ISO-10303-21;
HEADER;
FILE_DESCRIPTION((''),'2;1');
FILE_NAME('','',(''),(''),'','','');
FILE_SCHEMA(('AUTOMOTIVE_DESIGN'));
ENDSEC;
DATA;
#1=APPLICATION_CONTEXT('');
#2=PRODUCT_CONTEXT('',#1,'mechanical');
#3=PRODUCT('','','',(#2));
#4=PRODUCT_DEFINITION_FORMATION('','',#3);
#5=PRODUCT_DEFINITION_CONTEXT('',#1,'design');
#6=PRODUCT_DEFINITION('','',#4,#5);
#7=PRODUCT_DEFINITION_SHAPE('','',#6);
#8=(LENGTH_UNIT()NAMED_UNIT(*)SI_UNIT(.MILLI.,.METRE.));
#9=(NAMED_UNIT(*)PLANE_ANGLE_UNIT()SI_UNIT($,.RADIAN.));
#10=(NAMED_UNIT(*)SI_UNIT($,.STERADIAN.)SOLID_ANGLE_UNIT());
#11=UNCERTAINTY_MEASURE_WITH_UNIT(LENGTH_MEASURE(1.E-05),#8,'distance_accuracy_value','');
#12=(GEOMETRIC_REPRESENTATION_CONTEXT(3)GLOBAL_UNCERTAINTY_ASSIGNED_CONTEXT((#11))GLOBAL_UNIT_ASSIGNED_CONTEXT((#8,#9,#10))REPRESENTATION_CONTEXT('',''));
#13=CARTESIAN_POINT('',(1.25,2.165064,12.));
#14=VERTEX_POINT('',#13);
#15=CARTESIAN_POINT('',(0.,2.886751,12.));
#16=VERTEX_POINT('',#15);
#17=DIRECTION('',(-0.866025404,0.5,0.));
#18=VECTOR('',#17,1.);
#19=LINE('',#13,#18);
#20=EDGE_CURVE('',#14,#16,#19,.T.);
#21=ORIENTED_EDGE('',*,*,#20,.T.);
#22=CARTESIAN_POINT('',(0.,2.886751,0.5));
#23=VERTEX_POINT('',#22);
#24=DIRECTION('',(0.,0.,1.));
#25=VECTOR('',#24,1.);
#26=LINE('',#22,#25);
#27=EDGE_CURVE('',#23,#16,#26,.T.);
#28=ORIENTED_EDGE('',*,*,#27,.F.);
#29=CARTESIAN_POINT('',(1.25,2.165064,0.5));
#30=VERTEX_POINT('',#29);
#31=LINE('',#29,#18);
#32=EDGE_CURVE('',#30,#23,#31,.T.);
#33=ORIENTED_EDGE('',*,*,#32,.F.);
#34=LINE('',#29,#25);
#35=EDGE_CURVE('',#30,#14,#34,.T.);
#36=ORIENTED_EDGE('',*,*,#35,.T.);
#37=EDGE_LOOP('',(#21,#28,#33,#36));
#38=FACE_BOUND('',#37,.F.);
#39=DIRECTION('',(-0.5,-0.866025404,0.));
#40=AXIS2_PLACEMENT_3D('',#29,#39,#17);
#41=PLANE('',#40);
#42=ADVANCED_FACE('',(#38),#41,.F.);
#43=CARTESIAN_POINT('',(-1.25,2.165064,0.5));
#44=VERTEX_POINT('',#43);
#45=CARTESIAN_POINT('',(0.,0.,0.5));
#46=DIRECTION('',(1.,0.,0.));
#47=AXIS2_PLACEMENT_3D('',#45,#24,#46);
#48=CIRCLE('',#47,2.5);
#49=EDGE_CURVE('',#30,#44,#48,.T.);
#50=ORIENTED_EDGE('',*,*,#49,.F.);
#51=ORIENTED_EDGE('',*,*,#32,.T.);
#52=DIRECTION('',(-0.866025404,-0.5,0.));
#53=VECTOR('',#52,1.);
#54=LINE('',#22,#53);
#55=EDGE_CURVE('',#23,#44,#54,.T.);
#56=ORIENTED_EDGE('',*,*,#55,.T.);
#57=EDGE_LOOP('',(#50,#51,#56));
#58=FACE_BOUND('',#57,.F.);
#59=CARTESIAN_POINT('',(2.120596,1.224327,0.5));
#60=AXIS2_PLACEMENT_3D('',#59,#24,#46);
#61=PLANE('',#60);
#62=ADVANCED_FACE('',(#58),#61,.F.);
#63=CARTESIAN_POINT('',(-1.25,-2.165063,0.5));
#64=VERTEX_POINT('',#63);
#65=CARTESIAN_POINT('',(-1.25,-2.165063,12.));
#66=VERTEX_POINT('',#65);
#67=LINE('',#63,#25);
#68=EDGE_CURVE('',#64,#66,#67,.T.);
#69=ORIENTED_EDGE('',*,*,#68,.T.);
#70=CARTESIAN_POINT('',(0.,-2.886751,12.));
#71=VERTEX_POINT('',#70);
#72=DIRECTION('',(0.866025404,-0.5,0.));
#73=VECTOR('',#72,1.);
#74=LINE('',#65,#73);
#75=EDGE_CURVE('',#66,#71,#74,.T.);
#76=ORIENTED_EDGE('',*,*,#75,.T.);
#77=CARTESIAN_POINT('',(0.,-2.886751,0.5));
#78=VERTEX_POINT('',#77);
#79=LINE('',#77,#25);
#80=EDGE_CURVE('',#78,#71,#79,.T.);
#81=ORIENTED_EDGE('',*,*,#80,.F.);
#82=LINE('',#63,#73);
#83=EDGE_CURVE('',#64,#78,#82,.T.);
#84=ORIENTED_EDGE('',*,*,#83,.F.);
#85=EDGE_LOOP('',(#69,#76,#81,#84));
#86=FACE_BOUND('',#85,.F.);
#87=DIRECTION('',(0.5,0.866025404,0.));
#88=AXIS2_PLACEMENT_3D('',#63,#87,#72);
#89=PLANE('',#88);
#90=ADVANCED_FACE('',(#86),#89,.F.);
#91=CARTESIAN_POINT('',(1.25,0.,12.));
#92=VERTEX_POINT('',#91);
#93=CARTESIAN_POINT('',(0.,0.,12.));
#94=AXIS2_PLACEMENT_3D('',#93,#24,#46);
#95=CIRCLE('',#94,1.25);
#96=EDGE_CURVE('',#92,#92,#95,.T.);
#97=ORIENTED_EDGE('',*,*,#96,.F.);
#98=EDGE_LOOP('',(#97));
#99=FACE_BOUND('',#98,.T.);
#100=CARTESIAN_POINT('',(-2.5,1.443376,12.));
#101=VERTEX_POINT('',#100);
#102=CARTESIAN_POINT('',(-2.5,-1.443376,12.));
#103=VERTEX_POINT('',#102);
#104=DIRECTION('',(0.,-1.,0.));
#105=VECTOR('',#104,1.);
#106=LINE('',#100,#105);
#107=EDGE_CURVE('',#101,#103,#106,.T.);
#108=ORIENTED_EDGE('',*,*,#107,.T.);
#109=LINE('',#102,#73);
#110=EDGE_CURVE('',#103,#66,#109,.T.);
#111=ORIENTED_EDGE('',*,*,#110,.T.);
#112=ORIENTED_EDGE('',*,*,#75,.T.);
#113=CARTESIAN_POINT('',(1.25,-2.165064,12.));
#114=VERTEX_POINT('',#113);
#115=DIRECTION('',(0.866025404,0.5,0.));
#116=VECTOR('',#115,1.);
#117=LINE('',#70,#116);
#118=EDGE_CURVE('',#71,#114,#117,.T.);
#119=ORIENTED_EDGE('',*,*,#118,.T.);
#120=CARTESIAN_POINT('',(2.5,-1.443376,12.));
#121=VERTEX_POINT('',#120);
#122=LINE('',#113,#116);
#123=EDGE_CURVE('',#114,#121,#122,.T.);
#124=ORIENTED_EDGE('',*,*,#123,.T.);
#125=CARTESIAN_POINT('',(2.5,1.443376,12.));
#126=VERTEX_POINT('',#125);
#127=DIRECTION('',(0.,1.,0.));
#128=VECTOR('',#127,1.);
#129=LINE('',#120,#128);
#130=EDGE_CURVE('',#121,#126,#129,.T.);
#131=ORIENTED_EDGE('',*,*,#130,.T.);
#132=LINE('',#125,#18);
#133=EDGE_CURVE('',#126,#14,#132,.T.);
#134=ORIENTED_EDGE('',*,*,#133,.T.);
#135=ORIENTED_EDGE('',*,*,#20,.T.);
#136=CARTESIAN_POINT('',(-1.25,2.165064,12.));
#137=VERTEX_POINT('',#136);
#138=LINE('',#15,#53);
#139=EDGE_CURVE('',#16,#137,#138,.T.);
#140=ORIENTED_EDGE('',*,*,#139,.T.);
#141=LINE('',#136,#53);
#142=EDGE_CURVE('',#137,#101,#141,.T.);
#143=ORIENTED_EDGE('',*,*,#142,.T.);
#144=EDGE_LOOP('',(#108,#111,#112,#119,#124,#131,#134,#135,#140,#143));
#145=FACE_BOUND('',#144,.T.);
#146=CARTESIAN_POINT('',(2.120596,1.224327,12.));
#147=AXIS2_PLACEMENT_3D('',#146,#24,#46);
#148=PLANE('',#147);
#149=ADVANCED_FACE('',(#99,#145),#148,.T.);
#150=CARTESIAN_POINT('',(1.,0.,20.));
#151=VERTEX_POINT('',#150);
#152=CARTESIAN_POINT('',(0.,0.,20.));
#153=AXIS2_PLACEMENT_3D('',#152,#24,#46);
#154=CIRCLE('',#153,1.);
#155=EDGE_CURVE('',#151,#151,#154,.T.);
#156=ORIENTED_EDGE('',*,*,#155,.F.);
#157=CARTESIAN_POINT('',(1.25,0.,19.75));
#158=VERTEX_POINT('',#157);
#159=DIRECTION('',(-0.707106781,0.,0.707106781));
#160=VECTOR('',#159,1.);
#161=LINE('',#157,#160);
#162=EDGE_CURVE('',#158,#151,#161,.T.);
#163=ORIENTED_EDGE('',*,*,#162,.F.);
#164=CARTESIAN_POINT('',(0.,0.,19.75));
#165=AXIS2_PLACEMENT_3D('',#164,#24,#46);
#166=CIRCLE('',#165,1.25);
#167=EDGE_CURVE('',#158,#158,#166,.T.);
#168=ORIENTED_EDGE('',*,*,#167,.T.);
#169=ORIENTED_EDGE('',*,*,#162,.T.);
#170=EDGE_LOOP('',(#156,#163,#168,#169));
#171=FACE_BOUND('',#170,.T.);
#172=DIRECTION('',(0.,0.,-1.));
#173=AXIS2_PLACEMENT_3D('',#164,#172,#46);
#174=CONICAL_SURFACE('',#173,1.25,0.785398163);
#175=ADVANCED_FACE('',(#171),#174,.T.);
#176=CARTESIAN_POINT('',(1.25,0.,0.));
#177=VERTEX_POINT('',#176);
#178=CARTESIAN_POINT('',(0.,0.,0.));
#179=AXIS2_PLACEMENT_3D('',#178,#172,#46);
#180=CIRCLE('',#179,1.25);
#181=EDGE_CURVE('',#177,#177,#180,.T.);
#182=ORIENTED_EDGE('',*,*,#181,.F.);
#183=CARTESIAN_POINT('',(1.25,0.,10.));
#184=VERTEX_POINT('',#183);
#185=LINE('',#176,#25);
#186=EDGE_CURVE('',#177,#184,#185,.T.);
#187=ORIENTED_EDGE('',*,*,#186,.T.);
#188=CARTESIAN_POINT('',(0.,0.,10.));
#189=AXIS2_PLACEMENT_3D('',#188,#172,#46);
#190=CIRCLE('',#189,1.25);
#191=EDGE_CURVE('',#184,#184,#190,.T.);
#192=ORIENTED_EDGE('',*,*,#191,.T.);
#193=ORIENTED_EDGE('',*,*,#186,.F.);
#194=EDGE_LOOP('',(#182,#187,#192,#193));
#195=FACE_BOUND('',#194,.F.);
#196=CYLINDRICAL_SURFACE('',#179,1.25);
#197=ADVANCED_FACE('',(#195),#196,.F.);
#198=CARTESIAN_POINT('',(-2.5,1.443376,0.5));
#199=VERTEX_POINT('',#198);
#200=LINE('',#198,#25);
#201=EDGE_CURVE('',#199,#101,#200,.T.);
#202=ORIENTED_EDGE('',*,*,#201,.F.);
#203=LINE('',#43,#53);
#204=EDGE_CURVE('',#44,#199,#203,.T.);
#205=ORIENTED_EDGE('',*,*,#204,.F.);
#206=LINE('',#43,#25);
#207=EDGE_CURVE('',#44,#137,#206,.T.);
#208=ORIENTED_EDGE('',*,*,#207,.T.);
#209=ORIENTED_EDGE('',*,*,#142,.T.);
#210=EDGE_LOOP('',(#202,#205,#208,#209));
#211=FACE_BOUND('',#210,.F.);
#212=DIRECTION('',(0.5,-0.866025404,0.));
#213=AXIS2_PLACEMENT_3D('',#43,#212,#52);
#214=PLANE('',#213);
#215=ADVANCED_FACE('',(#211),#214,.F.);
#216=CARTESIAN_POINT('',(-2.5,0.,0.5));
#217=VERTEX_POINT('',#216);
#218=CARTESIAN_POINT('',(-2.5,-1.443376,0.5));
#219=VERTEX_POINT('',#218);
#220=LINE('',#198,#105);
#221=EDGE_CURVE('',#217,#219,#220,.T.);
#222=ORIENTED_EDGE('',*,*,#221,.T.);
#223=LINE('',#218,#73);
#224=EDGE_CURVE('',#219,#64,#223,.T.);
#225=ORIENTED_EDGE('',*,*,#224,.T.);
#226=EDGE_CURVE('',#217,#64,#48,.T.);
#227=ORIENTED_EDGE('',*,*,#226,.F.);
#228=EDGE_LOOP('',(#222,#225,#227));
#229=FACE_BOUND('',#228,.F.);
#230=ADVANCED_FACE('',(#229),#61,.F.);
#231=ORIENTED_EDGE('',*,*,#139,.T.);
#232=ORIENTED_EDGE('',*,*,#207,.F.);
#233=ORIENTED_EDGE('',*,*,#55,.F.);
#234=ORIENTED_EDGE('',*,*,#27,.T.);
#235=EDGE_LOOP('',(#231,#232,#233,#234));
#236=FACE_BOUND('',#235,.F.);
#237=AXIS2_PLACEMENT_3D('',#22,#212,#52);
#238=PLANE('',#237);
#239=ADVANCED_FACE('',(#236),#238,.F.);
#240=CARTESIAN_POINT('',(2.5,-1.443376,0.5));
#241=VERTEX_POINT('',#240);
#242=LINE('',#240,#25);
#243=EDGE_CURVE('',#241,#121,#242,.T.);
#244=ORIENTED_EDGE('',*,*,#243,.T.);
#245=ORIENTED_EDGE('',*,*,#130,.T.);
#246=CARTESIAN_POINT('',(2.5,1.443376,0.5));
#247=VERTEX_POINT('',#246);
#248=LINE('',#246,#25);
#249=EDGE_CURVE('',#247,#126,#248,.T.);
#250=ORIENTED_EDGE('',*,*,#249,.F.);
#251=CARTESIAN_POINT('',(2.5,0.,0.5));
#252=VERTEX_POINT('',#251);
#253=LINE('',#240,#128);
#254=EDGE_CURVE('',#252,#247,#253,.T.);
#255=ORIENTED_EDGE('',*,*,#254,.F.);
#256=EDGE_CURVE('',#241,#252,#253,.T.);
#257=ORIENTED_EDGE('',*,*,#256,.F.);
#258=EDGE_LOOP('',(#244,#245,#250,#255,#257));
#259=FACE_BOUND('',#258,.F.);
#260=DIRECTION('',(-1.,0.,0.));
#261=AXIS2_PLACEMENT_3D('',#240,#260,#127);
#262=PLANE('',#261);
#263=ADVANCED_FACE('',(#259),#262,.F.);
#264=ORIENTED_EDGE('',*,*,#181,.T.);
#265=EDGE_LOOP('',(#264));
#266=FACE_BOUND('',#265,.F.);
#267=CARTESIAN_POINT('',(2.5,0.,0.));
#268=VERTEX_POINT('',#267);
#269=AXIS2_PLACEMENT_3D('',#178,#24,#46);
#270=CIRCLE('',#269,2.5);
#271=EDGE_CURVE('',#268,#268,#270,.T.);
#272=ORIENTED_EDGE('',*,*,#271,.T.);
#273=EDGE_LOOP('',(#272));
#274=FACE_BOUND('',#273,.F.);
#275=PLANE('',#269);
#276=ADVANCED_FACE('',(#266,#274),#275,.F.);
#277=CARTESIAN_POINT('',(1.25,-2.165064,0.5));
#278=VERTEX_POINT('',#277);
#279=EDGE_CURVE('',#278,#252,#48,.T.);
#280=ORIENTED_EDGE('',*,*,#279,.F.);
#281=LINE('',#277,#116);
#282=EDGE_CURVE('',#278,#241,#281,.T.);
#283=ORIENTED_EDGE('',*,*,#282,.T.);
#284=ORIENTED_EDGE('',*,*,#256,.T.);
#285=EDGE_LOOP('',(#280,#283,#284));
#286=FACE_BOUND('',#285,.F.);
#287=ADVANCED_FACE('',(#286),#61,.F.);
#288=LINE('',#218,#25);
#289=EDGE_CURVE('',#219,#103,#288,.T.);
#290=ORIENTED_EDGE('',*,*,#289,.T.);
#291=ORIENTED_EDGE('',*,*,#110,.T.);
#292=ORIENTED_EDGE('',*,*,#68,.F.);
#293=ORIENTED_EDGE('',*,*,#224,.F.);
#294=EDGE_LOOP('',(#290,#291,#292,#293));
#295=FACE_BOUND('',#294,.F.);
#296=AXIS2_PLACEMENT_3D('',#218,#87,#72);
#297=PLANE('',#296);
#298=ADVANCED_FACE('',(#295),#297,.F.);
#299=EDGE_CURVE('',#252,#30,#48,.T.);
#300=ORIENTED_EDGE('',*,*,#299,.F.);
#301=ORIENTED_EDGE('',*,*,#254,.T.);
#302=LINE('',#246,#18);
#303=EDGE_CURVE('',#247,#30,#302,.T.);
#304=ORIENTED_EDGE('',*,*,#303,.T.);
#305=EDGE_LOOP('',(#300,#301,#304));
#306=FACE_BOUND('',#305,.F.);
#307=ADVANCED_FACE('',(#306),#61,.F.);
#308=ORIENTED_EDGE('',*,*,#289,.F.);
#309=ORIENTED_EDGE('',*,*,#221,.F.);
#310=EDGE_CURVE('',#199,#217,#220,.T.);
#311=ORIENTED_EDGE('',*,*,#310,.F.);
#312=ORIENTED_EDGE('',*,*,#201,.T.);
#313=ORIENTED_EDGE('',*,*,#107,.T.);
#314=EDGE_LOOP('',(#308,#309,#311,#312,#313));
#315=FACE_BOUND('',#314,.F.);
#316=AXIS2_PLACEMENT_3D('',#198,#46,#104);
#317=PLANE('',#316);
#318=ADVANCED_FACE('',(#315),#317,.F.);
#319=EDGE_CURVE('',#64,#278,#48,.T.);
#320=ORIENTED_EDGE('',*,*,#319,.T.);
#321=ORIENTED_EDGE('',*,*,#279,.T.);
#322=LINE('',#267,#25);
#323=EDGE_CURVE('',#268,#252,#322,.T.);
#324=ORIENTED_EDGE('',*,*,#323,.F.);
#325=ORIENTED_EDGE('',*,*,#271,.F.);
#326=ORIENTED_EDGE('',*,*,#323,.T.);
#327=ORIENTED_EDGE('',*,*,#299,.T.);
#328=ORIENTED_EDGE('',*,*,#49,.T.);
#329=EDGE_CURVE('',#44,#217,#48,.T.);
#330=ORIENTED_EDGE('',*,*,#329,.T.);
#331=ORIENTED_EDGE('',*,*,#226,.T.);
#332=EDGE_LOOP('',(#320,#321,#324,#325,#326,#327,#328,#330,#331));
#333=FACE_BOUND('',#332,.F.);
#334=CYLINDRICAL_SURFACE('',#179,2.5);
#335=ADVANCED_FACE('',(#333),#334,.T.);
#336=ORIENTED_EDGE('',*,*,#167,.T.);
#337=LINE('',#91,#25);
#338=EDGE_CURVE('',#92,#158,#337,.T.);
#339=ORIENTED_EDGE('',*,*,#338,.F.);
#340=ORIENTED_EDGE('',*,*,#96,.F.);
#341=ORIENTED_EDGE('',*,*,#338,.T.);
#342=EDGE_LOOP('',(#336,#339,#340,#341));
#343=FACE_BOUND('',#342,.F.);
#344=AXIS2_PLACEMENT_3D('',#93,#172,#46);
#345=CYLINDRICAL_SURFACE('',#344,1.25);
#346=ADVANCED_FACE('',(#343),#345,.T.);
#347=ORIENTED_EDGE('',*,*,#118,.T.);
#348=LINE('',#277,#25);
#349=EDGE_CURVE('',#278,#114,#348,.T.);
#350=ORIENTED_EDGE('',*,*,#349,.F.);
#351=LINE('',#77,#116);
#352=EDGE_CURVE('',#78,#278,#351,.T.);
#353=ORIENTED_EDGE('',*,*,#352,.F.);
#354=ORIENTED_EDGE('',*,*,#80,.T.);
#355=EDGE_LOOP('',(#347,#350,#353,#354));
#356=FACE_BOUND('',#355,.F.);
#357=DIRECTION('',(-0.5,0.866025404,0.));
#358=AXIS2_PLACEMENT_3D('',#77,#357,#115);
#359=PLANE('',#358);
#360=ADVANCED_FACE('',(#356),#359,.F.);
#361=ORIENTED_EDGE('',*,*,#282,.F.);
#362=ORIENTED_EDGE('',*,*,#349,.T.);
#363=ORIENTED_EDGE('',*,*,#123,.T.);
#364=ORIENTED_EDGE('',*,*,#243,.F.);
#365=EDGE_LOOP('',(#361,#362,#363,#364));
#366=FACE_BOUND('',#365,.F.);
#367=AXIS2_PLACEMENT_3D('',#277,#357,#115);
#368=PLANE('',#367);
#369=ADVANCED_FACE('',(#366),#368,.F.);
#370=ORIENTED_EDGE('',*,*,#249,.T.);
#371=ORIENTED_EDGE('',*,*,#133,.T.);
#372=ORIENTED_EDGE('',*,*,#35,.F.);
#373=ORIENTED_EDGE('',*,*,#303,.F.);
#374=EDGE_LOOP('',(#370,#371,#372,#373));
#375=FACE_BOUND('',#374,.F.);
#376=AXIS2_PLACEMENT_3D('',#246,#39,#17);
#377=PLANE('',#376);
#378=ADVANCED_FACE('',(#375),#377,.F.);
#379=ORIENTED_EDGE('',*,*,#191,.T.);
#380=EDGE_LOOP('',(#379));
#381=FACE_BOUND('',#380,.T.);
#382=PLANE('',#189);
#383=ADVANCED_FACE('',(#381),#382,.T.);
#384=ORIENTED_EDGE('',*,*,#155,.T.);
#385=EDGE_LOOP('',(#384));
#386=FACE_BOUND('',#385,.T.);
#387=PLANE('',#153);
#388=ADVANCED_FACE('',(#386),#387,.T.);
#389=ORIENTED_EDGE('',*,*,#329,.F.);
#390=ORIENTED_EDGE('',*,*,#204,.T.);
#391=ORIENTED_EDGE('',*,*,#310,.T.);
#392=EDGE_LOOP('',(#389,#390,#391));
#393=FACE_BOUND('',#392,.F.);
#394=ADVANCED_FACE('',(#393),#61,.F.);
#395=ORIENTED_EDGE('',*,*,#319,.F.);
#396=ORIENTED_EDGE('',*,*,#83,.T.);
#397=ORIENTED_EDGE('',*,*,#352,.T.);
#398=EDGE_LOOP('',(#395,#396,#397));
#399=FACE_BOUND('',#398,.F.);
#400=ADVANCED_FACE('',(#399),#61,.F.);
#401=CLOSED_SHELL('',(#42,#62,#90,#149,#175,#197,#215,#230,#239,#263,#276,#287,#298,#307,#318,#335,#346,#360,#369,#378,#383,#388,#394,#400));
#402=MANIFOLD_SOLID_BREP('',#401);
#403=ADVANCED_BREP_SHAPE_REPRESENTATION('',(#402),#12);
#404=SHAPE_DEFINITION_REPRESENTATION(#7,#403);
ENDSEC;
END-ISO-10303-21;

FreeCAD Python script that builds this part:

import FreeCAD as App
import Part
import Sketcher

V = App.Vector
Q = App.Units.Quantity


def edges_at(feature, points):
    """Names of the edges that pass closest to the given points."""
    edges = feature.Shape.Edges
    near = lambda p: min(range(len(edges)), key=lambda i: edges[i].distToShape(Part.Vertex(*p))[0])
    return sorted({f"Edge{near(p) + 1}" for p in points})


def add_polygon(sketch, points):
    """Adds a closed chain of lines whose ends are joined by coincident constraints."""
    first, n = sketch.GeometryCount, len(points)
    for a, b in zip(points, points[1:] + points[:1]):
        sketch.addGeometry(Part.LineSegment(App.Vector(*a, 0), App.Vector(*b, 0)), False)
    for i in range(n):
        sketch.addConstraint(Sketcher.Constraint("Coincident", first + i, 2, first + (i + 1) % n, 1))

doc = App.newDocument("Part")
body = doc.addObject("PartDesign::Body", "Body")

sketch1 = doc.addObject("Sketcher::SketchObject", "Sketch")
body.addObject(sketch1)
sketch1.AttachmentSupport = (doc.XY_Plane, [""])
sketch1.MapMode = "FlatFace"
sketch1.addGeometry(Part.Circle(V(0, 0, 0), V(0, 0, 1), 2.5), False)
sketch1.addConstraint(Sketcher.Constraint("Coincident", 0, 3, -1, 1))
sketch1.addConstraint(Sketcher.Constraint("Diameter", 0, Q("5 mm")))
pad1 = doc.addObject("PartDesign::Pad", "Pad")
body.addObject(pad1)
pad1.Profile = sketch1
pad1.Length = 0.5

sketch2 = doc.addObject("Sketcher::SketchObject", "Sketch001")
body.addObject(sketch2)
sketch2.AttachmentSupport = (doc.XY_Plane, [""])
sketch2.MapMode = "FlatFace"
sketch2.AttachmentOffset = App.Placement(V(0, 0, 0.5), App.Rotation())
add_polygon(sketch2, [(2.5, 1.4), (1.3, 2.2), (0, 2.9), (-1.2, 2.2), (-2.5, 1.4), (-2.5, -1.4), (-1.3, -2.2), (0, -2.9), (1.3, -2.2), (2.5, -1.4)])
sketch2.addConstraint(Sketcher.Constraint("Vertical", 4))
sketch2.addConstraint(Sketcher.Constraint("Vertical", 9))
sketch2.addConstraint(Sketcher.Constraint("Symmetric", 0, 2, 5, 2, -1, 1))
sketch2.addConstraint(Sketcher.Constraint("Symmetric", 1, 2, 6, 2, -1, 1))
sketch2.addConstraint(Sketcher.Constraint("Symmetric", 2, 2, 7, 2, -1, 1))
sketch2.addConstraint(Sketcher.Constraint("Symmetric", 3, 2, 8, 2, -1, 1))
sketch2.addConstraint(Sketcher.Constraint("Symmetric", 0, 2, 2, 2, -2))
sketch2.addConstraint(Sketcher.Constraint("PointOnObject", 1, 2, -2))
sketch2.addConstraint(Sketcher.Constraint("Parallel", 0, 1))
sketch2.addConstraint(Sketcher.Constraint("Parallel", 2, 3))
sketch2.addConstraint(Sketcher.Constraint("Parallel", 1, 5))
sketch2.addConstraint(Sketcher.Constraint("Equal", 0, 1))
sketch2.addConstraint(Sketcher.Constraint("Angle", 0, Q("150 deg")))
sketch2.addConstraint(Sketcher.Constraint("DistanceX", 4, 2, 8, 2, Q("5 mm")))
sketch2.addConstraint(Sketcher.Constraint("DistanceY", 4, 2, 4, 1, Q("2.886751 mm")))
pad2 = doc.addObject("PartDesign::Pad", "Pad001")
body.addObject(pad2)
pad2.Profile = sketch2
pad2.Length = 11.5

sketch3 = doc.addObject("Sketcher::SketchObject", "Sketch002")
body.addObject(sketch3)
sketch3.AttachmentSupport = (doc.XY_Plane, [""])
sketch3.MapMode = "FlatFace"
sketch3.AttachmentOffset = App.Placement(V(0, 0, 12), App.Rotation())
sketch3.addGeometry(Part.Circle(V(0, 0, 0), V(0, 0, 1), 1.2), False)
sketch3.addConstraint(Sketcher.Constraint("Coincident", 0, 3, -1, 1))
sketch3.addConstraint(Sketcher.Constraint("Diameter", 0, Q("2.5 mm")))
pad3 = doc.addObject("PartDesign::Pad", "Pad002")
body.addObject(pad3)
pad3.Profile = sketch3
pad3.Length = 8
doc.recompute()

chamfer = doc.addObject("PartDesign::Chamfer", "Chamfer")
body.addObject(chamfer)
chamfer.Base = (pad3, edges_at(pad3, [(-1.25, 0, 20)]))
chamfer.Size = 0.25

sketch4 = doc.addObject("Sketcher::SketchObject", "Sketch003")
body.addObject(sketch4)
sketch4.AttachmentSupport = (doc.XY_Plane, [""])
sketch4.MapMode = "FlatFace"
sketch4.addGeometry(Part.Circle(V(0, 0, 0), V(0, 0, 1), 1.2), False)
sketch4.addConstraint(Sketcher.Constraint("Coincident", 0, 3, -1, 1))
sketch4.addConstraint(Sketcher.Constraint("Diameter", 0, Q("2.5 mm")))
pocket1 = doc.addObject("PartDesign::Pocket", "Pocket")
body.addObject(pocket1)
pocket1.Profile = sketch4
pocket1.Length = 10
pocket1.Reversed = True

doc.recompute()
